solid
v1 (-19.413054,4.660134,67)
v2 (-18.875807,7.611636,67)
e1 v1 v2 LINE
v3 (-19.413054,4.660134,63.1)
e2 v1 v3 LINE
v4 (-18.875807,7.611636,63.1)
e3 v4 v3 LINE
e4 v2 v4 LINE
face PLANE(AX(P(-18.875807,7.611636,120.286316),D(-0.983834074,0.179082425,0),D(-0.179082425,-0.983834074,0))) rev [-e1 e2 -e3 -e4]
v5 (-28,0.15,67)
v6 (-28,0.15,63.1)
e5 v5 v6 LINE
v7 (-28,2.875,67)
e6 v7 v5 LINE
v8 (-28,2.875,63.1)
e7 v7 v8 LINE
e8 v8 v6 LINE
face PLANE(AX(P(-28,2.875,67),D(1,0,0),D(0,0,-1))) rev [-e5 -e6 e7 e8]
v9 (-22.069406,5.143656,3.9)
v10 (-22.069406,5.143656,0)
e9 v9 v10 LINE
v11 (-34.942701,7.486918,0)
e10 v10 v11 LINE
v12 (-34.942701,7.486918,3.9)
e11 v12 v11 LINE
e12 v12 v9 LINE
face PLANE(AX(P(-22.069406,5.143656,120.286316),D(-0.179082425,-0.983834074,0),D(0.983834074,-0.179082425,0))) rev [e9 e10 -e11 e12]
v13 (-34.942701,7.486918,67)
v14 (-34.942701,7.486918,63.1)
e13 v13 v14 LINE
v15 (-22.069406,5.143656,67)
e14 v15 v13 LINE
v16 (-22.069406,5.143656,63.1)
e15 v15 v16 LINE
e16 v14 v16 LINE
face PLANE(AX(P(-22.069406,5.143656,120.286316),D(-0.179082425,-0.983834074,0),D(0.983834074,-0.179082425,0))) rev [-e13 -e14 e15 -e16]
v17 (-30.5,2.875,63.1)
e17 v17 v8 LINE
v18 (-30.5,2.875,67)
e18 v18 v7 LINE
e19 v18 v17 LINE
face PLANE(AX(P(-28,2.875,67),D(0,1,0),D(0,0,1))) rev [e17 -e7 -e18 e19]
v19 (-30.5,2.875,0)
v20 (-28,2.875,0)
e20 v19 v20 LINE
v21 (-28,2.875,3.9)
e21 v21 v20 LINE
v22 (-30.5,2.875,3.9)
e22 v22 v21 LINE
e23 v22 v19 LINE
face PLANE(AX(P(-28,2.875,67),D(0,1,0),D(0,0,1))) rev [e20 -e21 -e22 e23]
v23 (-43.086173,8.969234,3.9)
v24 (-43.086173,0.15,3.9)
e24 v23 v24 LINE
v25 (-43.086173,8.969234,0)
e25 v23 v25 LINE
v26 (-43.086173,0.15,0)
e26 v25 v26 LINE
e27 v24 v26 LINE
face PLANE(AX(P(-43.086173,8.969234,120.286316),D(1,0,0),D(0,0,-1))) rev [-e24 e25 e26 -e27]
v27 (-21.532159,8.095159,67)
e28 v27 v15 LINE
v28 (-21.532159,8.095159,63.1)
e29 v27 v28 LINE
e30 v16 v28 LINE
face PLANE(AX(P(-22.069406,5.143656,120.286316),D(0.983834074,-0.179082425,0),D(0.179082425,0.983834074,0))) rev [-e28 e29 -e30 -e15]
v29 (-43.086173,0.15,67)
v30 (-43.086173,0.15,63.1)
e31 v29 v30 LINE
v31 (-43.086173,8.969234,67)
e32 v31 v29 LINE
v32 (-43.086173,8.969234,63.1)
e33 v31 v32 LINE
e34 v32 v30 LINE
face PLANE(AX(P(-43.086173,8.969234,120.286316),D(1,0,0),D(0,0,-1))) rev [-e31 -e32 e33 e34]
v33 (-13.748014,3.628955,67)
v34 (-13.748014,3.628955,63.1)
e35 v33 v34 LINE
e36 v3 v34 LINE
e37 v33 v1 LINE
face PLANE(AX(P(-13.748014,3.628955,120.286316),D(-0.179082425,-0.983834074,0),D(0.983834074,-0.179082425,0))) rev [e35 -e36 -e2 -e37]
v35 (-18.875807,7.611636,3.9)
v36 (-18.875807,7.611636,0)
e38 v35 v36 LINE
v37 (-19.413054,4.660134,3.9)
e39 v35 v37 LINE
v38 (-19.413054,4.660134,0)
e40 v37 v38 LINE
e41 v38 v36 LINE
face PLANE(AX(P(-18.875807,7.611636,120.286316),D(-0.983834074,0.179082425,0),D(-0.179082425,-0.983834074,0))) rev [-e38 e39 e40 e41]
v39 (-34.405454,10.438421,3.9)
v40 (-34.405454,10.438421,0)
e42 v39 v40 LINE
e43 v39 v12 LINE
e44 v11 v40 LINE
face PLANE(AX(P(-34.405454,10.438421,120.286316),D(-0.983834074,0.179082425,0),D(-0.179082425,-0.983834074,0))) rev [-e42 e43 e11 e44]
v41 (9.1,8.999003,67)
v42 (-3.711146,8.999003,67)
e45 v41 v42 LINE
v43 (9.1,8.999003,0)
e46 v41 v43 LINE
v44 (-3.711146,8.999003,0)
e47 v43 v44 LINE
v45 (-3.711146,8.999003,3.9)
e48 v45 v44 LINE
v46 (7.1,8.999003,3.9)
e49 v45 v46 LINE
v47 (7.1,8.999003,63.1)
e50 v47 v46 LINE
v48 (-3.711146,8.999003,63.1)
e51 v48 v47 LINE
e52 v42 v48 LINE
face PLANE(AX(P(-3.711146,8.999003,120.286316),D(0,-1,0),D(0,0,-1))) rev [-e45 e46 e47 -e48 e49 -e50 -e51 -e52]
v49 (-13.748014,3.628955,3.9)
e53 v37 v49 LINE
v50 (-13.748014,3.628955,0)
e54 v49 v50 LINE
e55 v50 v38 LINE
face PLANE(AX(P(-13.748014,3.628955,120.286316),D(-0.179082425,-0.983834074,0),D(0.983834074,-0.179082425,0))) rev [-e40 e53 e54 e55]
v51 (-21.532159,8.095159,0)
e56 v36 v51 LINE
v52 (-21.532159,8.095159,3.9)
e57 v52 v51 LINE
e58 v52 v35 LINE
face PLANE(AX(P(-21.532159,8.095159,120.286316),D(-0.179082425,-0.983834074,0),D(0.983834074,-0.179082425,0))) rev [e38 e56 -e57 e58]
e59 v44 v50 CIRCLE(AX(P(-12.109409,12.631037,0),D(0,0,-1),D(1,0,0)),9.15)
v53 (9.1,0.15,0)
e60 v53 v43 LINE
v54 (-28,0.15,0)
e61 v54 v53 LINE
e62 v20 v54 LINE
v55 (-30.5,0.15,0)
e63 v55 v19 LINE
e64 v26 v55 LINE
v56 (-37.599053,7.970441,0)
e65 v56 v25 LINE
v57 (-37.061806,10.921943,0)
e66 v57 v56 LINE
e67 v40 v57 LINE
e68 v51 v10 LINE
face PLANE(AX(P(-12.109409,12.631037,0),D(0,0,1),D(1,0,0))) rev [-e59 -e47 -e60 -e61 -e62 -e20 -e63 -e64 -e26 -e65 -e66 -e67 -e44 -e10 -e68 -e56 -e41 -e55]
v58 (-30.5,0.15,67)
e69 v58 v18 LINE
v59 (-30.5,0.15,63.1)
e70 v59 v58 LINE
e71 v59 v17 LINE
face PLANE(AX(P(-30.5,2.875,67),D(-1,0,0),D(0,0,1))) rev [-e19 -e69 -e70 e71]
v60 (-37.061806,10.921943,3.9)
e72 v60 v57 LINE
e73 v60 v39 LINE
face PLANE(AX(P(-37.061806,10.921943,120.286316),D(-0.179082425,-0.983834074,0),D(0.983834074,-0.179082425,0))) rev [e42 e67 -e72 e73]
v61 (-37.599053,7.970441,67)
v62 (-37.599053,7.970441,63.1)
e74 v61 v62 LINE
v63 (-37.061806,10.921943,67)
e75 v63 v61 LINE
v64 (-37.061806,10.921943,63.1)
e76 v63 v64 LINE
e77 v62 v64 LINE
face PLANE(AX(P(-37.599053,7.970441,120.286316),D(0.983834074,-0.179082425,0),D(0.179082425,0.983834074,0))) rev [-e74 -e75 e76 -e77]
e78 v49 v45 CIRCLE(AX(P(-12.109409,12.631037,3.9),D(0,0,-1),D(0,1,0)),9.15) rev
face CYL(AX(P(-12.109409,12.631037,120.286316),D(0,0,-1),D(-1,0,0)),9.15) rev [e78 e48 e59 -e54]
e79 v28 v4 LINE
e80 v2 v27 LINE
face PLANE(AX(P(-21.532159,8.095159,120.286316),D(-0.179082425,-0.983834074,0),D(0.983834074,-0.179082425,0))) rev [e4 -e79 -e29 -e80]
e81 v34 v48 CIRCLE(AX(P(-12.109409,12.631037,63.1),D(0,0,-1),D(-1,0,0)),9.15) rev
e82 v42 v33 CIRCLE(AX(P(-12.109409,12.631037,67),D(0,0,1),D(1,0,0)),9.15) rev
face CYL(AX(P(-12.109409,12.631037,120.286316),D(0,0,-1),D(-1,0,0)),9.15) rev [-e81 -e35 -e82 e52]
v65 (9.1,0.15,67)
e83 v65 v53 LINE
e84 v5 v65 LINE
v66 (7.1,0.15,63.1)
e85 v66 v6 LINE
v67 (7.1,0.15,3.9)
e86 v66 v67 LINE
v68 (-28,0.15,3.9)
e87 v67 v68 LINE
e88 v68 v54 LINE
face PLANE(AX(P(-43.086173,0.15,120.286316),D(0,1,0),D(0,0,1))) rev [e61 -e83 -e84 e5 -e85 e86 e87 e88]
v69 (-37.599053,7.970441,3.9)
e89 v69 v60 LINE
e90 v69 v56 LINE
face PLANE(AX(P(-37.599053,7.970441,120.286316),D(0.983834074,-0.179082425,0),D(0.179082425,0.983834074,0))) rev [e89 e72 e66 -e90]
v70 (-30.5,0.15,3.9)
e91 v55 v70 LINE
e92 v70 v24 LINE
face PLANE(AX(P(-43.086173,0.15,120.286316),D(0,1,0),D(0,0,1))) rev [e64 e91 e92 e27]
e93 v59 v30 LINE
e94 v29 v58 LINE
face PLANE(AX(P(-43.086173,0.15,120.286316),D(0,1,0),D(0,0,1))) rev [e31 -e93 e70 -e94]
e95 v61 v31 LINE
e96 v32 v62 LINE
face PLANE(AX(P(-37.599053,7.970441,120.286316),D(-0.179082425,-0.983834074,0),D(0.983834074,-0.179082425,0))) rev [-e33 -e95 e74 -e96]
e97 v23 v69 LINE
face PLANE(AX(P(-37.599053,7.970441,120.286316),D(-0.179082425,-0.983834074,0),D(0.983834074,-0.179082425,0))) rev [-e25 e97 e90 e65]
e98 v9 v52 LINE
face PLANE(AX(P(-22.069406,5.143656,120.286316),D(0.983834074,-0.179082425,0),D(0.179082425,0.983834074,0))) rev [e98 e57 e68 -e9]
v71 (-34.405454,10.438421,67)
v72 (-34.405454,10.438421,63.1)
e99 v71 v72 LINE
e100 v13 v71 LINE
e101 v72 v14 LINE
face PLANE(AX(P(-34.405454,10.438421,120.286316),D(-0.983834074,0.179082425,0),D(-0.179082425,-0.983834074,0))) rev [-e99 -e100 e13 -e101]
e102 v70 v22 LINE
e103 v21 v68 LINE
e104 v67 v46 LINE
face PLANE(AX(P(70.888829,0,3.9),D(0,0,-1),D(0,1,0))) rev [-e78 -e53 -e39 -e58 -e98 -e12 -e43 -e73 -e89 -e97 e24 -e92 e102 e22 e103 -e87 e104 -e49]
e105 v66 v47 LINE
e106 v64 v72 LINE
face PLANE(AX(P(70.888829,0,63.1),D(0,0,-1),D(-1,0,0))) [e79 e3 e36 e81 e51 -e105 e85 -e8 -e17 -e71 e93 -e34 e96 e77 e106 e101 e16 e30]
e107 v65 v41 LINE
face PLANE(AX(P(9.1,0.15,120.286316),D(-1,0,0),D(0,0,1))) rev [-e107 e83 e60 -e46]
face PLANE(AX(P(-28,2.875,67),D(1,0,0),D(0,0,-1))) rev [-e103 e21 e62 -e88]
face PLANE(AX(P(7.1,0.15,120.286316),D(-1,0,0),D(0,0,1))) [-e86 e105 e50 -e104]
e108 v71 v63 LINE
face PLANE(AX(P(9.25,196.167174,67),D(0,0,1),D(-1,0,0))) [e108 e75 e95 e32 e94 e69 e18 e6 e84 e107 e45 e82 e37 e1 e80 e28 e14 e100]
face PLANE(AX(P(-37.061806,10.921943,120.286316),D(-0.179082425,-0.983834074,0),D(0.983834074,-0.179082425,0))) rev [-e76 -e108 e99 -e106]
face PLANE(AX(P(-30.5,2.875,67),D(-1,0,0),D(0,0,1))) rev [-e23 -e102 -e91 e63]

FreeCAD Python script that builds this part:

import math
import FreeCAD as App
import Part
import Sketcher

V = App.Vector

doc = App.newDocument("Part")
params = doc.addObject("Spreadsheet::Sheet", "Params")
for row, (alias, value) in enumerate([
    ("sketch1_radius", "9.15 mm"),
    ("sketch1_length", "3 mm"),
    ("sketch1_length2", "2.7 mm"),
    ("pad1_length", "67 mm"),
    ("sketch2_height", "59.2 mm"),
    ("pocket1_length", "50.186173 mm"),
    ("sketch3_width", "2.5 mm"),
], start=1):
    params.set(f"A{row}", alias)
    params.set(f"B{row}", "=" + value)
    params.setAlias(f"B{row}", alias)

body = doc.addObject("PartDesign::Body", "Body")

sketch1 = doc.addObject("Sketcher::SketchObject", "Sketch")
body.addObject(sketch1)
sketch1.AttachmentSupport = (doc.XY_Plane, [""])
sketch1.MapMode = "FlatFace"
sketch1.addGeometry([
    Part.LineSegment(V(-13.748014, 3.628955, 0), V(-19.413054, 4.660134, 0)),
    Part.LineSegment(V(-19.413054, 4.660134, 0), V(-18.875807, 7.611636, 0)),
    Part.LineSegment(V(-18.875807, 7.611636, 0), V(-21.532159, 8.095159, 0)),
    Part.LineSegment(V(-21.532159, 8.095159, 0), V(-22.069406, 5.143656, 0)),
    Part.LineSegment(V(-22.069406, 5.143656, 0), V(-34.942701, 7.486918, 0)),
    Part.LineSegment(V(-34.942701, 7.486918, 0), V(-34.405454, 10.438421, 0)),
    Part.LineSegment(V(-34.405454, 10.438421, 0), V(-37.061806, 10.921943, 0)),
    Part.LineSegment(V(-37.061806, 10.921943, 0), V(-37.599053, 7.970441, 0)),
    Part.LineSegment(V(-37.599053, 7.970441, 0), V(-43.086173, 8.969234, 0)),
    Part.LineSegment(V(-43.086173, 8.969234, 0), V(-43.086173, 0.15, 0)),
    Part.LineSegment(V(-43.086173, 0.15, 0), V(9.1, 0.15, 0)),
    Part.LineSegment(V(9.1, 0.15, 0), V(9.1, 8.999003, 0)),
    Part.LineSegment(V(9.1, 8.999003, 0), V(-3.711146, 8.999003, 0)),
    Part.ArcOfCircle(Part.Circle(V(-12.109409, 12.631037, 0), V(0, 0, 1), 9.15), math.radians(-100.316318), math.radians(-23.387246)),
], False)
sketch1.addConstraint([
    Sketcher.Constraint("Coincident", 0, 2, 1, 1),
    Sketcher.Constraint("Coincident", 1, 2, 2, 1),
    Sketcher.Constraint("Coincident", 2, 2, 3, 1),
    Sketcher.Constraint("Coincident", 3, 2, 4, 1),
    Sketcher.Constraint("Coincident", 4, 2, 5, 1),
    Sketcher.Constraint("Coincident", 5, 2, 6, 1),
    Sketcher.Constraint("Coincident", 6, 2, 7, 1),
    Sketcher.Constraint("Coincident", 7, 2, 8, 1),
    Sketcher.Constraint("Coincident", 8, 2, 9, 1),
    Sketcher.Constraint("Coincident", 9, 2, 10, 1),
    Sketcher.Constraint("Coincident", 10, 2, 11, 1),
    Sketcher.Constraint("Coincident", 11, 2, 12, 1),
    Sketcher.Constraint("Coincident", 12, 2, 13, 2),
    Sketcher.Constraint("Tangent", 13, 1, 0, 1),
    Sketcher.Constraint("Vertical", 9),
    Sketcher.Constraint("Horizontal", 10),
    Sketcher.Constraint("Vertical", 11),
    Sketcher.Constraint("Horizontal", 12),
    Sketcher.Constraint("Perpendicular", 0, 1),
    Sketcher.Constraint("Perpendicular", 1, 2),
    Sketcher.Constraint("Perpendicular", 2, 3),
    Sketcher.Constraint("Perpendicular", 3, 4),
    Sketcher.Constraint("Perpendicular", 4, 5),
    Sketcher.Constraint("Perpendicular", 5, 6),
    Sketcher.Constraint("Perpendicular", 6, 7),
    Sketcher.Constraint("Perpendicular", 7, 8),
    Sketcher.Constraint("Equal", 1, 3),
    Sketcher.Constraint("Equal", 3, 5),
    Sketcher.Constraint("Equal", 2, 6),
    Sketcher.Constraint("Equal", 5, 7),
    Sketcher.Constraint("Radius", 13, 9.15),
    Sketcher.Constraint("Distance", 1, 3.0),
    Sketcher.Constraint("Distance", 2, 2.7),
    Sketcher.Constraint("DistanceX", -1, 1, 10, 2, 9.1),
    Sketcher.Constraint("DistanceY", -1, 1, 9, 2, 0.15),
    Sketcher.Constraint("DistanceX", 6, 2, 1, 2, 18.185999),
    Sketcher.Constraint("DistanceX", 4, 2, -1, 1, 34.942701),
    Sketcher.Constraint("DistanceY", 1, 2, 13, 3, 5.0194),
    Sketcher.Constraint("DistanceX", 3, 2, 1, 2, 3.193599),
    Sketcher.Constraint("DistanceX", 10, 1, 10, 2, 52.186173),
    Sketcher.Constraint("DistanceX", 12, 2, 12, 1, 12.811146),
    Sketcher.Constraint("DistanceY", 9, 2, 9, 1, 8.819234),
])
sketch1.setExpression("Constraints[30]", "Params.sketch1_radius")
sketch1.setExpression("Constraints[31]", "Params.sketch1_length")
sketch1.setExpression("Constraints[32]", "Params.sketch1_length2")
pad1 = doc.addObject("PartDesign::Pad", "Pad")
body.addObject(pad1)
pad1.Profile = sketch1
pad1.setExpression("Length", "Params.pad1_length")

sketch2 = doc.addObject("Sketcher::SketchObject", "Sketch001")
body.addObject(sketch2)
sketch2.AttachmentSupport = (doc.YZ_Plane, [""])
sketch2.MapMode = "FlatFace"
sketch2.AttachmentOffset = App.Placement(V(0, 0, -43.086173), App.Rotation())
sketch2.addGeometry([
    Part.LineSegment(V(17.848005, 3.9, 0), V(0.15, 3.9, 0)),
    Part.LineSegment(V(0.15, 3.9, 0), V(0.15, 63.1, 0)),
    Part.LineSegment(V(0.15, 63.1, 0), V(17.848005, 63.1, 0)),
    Part.LineSegment(V(17.848005, 63.1, 0), V(17.848005, 3.9, 0)),
], False)
sketch2.addConstraint([
    Sketcher.Constraint("Coincident", 0, 2, 1, 1),
    Sketcher.Constraint("Coincident", 1, 2, 2, 1),
    Sketcher.Constraint("Coincident", 2, 2, 3, 1),
    Sketcher.Constraint("Coincident", 3, 2, 0, 1),
    Sketcher.Constraint("Horizontal", 0),
    Sketcher.Constraint("Vertical", 1),
    Sketcher.Constraint("Horizontal", 2),
    Sketcher.Constraint("Vertical", 3),
    Sketcher.Constraint("DistanceY", 1, 1, 1, 2, 59.2),
    Sketcher.Constraint("DistanceY", -1, 1, 0, 2, 3.9),
    Sketcher.Constraint("DistanceX", -1, 1, 0, 2, 0.15),
    Sketcher.Constraint("DistanceX", 0, 2, 0, 1, 17.698005),
])
sketch2.setExpression("Constraints[8]", "Params.sketch2_height")
pocket1 = doc.addObject("PartDesign::Pocket", "Pocket")
body.addObject(pocket1)
pocket1.Profile = sketch2
pocket1.setExpression("Length", "Params.pocket1_length")
pocket1.Reversed = True

sketch3 = doc.addObject("Sketcher::SketchObject", "Sketch002")
body.addObject(sketch3)
sketch3.AttachmentSupport = (doc.XY_Plane, [""])
sketch3.MapMode = "FlatFace"
sketch3.addGeometry([
    Part.LineSegment(V(-28, 2.875, 0), V(-28, 0, 0)),
    Part.LineSegment(V(-28, 0, 0), V(-30.5, 0, 0)),
    Part.LineSegment(V(-30.5, 0, 0), V(-30.5, 2.875, 0)),
    Part.LineSegment(V(-30.5, 2.875, 0), V(-28, 2.875, 0)),
], False)
sketch3.addConstraint([
    Sketcher.Constraint("Coincident", 0, 2, 1, 1),
    Sketcher.Constraint("Coincident", 1, 2, 2, 1),
    Sketcher.Constraint("Coincident", 2, 2, 3, 1),
    Sketcher.Constraint("Coincident", 3, 2, 0, 1),
    Sketcher.Constraint("Vertical", 0),
    Sketcher.Constraint("Horizontal", 1),
    Sketcher.Constraint("Vertical", 2),
    Sketcher.Constraint("Horizontal", 3),
    Sketcher.Constraint("PointOnObject", 0, 2, -1),
    Sketcher.Constraint("DistanceX", 1, 2, 1, 1, 2.5),
    Sketcher.Constraint("DistanceX", 0, 2, -1, 1, 28.0),
    Sketcher.Constraint("DistanceY", 0, 2, 0, 1, 2.875),
])
sketch3.setExpression("Constraints[9]", "Params.sketch3_width")
pocket2 = doc.addObject("PartDesign::Pocket", "Pocket001")
body.addObject(pocket2)
pocket2.Profile = sketch3
pocket2.Type = "ThroughAll"
pocket2.Reversed = True

doc.recompute()
